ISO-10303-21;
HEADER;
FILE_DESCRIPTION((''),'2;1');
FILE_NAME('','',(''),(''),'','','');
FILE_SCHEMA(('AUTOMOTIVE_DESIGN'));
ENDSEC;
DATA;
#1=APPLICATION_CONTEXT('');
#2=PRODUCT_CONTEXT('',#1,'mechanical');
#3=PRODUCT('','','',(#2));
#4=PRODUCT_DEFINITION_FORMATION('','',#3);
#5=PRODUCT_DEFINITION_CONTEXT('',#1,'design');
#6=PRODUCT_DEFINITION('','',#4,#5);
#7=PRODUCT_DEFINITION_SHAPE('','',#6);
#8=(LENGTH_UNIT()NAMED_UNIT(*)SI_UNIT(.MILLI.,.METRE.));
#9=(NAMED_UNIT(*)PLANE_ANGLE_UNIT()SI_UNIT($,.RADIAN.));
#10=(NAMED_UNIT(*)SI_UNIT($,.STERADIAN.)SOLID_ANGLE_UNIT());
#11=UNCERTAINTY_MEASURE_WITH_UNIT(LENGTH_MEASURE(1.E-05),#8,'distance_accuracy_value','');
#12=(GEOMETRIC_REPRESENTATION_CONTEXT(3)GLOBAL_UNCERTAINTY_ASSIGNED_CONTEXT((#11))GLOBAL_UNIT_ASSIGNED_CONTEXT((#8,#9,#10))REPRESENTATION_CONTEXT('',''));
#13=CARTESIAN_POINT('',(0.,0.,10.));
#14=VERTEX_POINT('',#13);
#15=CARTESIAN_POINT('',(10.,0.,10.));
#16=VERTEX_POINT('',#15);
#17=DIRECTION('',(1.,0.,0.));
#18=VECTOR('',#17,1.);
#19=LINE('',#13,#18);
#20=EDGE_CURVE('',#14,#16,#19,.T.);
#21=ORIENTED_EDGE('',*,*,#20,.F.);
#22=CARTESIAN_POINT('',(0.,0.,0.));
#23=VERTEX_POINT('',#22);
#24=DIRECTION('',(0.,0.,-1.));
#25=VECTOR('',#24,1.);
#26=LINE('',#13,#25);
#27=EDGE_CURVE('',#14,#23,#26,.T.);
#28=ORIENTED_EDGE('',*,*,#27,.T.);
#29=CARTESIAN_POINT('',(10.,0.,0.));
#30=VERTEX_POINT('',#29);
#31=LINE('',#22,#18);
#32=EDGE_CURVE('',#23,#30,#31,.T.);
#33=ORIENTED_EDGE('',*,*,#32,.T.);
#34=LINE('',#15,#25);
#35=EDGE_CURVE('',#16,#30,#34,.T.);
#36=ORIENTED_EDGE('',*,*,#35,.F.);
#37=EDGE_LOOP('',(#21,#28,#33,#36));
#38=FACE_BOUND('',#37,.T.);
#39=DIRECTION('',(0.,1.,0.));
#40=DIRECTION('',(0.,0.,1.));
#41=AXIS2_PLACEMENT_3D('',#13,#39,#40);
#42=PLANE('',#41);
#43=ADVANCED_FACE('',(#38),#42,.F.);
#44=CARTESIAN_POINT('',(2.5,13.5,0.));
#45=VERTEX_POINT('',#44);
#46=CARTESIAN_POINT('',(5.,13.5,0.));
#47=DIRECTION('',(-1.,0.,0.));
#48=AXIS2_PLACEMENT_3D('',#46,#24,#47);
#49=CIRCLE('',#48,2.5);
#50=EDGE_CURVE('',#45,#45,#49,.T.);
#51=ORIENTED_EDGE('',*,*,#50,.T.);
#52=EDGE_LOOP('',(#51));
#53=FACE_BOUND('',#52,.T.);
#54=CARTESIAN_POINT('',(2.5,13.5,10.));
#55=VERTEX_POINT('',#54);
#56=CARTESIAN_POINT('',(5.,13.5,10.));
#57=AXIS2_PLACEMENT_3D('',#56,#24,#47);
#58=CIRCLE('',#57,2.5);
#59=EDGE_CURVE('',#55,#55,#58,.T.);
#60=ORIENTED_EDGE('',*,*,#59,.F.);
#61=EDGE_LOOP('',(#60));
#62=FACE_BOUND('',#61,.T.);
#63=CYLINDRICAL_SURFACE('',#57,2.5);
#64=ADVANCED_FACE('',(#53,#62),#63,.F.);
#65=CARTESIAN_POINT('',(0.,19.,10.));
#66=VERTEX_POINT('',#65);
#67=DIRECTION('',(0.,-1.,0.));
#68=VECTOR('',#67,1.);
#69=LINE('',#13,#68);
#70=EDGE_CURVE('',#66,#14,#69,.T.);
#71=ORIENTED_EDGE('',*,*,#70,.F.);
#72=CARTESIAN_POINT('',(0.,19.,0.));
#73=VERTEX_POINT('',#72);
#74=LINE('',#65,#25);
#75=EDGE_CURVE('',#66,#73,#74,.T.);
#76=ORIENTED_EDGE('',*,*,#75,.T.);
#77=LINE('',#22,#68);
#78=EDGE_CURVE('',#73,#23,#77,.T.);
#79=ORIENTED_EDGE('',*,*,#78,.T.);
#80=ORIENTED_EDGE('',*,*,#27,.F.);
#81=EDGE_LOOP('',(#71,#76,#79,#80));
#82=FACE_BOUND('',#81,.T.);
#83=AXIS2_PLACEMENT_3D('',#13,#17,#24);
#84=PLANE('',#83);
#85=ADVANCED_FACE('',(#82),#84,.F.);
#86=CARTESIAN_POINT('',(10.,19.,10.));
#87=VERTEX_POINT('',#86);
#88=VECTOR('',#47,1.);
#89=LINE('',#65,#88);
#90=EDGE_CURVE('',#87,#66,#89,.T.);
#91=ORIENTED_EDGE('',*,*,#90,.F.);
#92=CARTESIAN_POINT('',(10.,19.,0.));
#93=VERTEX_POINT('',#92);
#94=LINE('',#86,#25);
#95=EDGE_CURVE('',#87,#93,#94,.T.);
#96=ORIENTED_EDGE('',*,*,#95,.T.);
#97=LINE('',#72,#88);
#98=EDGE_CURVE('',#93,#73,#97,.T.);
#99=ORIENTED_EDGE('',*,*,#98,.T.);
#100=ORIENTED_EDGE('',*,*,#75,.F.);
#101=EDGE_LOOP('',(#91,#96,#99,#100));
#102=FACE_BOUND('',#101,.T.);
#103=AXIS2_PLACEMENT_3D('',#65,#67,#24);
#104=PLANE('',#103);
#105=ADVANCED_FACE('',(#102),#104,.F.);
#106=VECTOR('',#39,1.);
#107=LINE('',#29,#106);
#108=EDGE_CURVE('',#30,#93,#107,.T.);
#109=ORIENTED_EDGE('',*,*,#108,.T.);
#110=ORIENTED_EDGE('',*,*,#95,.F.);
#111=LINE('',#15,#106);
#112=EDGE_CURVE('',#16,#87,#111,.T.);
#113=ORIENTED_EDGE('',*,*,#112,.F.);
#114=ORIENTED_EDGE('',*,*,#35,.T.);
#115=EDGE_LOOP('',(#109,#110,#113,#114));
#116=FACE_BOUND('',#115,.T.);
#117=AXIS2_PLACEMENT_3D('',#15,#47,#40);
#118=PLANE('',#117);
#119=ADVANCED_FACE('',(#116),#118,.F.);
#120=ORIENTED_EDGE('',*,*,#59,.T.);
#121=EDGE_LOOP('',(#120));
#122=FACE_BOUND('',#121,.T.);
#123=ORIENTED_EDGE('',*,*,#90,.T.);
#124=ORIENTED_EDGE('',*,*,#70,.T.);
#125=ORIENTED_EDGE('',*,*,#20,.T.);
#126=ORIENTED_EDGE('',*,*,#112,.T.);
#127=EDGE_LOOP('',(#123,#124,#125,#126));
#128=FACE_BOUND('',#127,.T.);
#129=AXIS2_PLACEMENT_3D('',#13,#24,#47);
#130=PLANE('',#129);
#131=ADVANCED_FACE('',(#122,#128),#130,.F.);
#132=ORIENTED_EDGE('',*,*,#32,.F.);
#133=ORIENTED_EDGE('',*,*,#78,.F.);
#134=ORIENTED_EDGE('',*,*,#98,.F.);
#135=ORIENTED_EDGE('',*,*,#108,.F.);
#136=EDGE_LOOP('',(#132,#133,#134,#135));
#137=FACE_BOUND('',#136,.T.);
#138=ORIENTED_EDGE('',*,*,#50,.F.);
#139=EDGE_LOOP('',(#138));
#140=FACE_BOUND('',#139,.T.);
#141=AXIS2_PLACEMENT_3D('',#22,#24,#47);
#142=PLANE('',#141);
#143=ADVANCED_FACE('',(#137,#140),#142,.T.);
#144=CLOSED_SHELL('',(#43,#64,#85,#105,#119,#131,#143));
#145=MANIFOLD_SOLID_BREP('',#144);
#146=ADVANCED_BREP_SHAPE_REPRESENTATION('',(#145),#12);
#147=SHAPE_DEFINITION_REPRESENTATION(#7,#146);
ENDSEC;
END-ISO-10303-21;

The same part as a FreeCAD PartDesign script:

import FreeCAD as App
import Part
import Sketcher
Q = App.Units.Quantity


def add_polygon(sketch, points):
    """Adds a closed chain of lines whose ends are joined by coincident constraints."""
    first, n = sketch.GeometryCount, len(points)
    for a, b in zip(points, points[1:] + points[:1]):
        sketch.addGeometry(Part.LineSegment(App.Vector(*a, 0), App.Vector(*b, 0)), False)
    for i in range(n):
        sketch.addConstraint(Sketcher.Constraint("Coincident", first + i, 2, first + (i + 1) % n, 1))

doc = App.newDocument("Part")
body = doc.addObject("PartDesign::Body", "Body")

sketch1 = body.newObject("Sketcher::SketchObject", "Sketch")
sketch1.AttachmentSupport = (doc.getObject("XY_Plane"), [""])
sketch1.MapMode = "FlatFace"
add_polygon(sketch1, [(0, 19), (0, 0), (10, 0), (10, 19)])
sketch1.addConstraint(Sketcher.Constraint("Vertical", 0))
sketch1.addConstraint(Sketcher.Constraint("Horizontal", 1))
sketch1.addConstraint(Sketcher.Constraint("Vertical", 2))
sketch1.addConstraint(Sketcher.Constraint("Horizontal", 3))
sketch1.addConstraint(Sketcher.Constraint("Coincident", 0, 2, -1, 1))
sketch1.addConstraint(Sketcher.Constraint("DistanceX", 1, 1, 1, 2, Q("10 mm")))
sketch1.addConstraint(Sketcher.Constraint("DistanceY", 0, 2, 0, 1, Q("19 mm")))
pad1 = body.newObject("PartDesign::Pad", "Pad")
pad1.Profile = sketch1
pad1.Length = 10

sketch2 = body.newObject("Sketcher::SketchObject", "Sketch001")
sketch2.AttachmentSupport = (doc.getObject("XY_Plane"), [""])
sketch2.MapMode = "FlatFace"
sketch2.addGeometry(Part.Circle(App.Vector(5, 13.5, 0), App.Vector(0, 0, 1), 2.5), False)
sketch2.addConstraint(Sketcher.Constraint("Diameter", 0, Q("5 mm")))
sketch2.addConstraint(Sketcher.Constraint("DistanceX", -1, 1, 0, 3, Q("5 mm")))
sketch2.addConstraint(Sketcher.Constraint("DistanceY", -1, 1, 0, 3, Q("13.5 mm")))
pocket1 = body.newObject("PartDesign::Pocket", "Pocket")
pocket1.Profile = sketch2
pocket1.Length = 10
pocket1.Reversed = True

doc.recompute()
